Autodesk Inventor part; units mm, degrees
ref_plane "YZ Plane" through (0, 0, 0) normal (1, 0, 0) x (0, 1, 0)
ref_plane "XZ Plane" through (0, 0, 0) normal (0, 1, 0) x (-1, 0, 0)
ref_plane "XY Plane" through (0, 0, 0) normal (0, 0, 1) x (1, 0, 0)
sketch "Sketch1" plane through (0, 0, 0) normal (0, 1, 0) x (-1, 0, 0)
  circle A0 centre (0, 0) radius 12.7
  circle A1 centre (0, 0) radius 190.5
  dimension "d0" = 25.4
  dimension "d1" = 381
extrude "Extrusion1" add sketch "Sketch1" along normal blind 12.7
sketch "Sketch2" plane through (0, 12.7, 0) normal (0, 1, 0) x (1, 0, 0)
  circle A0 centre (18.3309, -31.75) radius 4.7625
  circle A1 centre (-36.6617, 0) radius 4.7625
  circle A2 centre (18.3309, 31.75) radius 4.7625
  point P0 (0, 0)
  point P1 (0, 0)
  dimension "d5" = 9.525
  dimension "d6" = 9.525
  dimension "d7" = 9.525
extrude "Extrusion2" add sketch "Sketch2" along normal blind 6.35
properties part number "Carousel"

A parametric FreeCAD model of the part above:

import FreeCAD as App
import Part
import Sketcher

V = App.Vector
Q = App.Units.Quantity

doc = App.newDocument("Part")
body = doc.addObject("PartDesign::Body", "Body")

# Sketch on XZ plane
sketch1 = body.newObject("Sketcher::SketchObject", "Sketch")
sketch1.AttachmentSupport = (doc.getObject("XZ_Plane"), [""])
sketch1.MapMode = "FlatFace"
sketch1.addGeometry(Part.Circle(V(0, 0, 0), V(0, 0, 1), 190), False)
sketch1.addGeometry(Part.Circle(V(0, 0, 0), V(0, 0, 1), 13), False)
sketch1.addConstraint(Sketcher.Constraint("Coincident", 0, 3, -1, 1))
sketch1.addConstraint(Sketcher.Constraint("Coincident", 1, 3, -1, 1))
sketch1.addConstraint(Sketcher.Constraint("Diameter", 0, Q("15 in")))
sketch1.addConstraint(Sketcher.Constraint("Diameter", 1, Q("1 in")))
pad1 = body.newObject("PartDesign::Pad", "Pad")
pad1.Profile = sketch1
pad1.Length = Q("0.5 in")
pad1.Reversed = True

# Sketch on XZ plane
sketch2 = body.newObject("Sketcher::SketchObject", "Sketch001")
sketch2.AttachmentSupport = (doc.getObject("XZ_Plane"), [""])
sketch2.MapMode = "FlatFace"
sketch2.AttachmentOffset = App.Placement(V(0, 0, -0.5 * 25.4), App.Rotation())
sketch2.addGeometry(Part.Circle(V(18.3, 31.8, 0), V(0, 0, 1), 4.8), False)
sketch2.addGeometry(Part.Circle(V(-36.7, 0, 0), V(0, 0, 1), 4.8), False)
sketch2.addGeometry(Part.Circle(V(18.3, -31.8, 0), V(0, 0, 1), 4.8), False)
sketch2.addConstraint(Sketcher.Constraint("Equal", 0, 1))
sketch2.addConstraint(Sketcher.Constraint("Equal", 1, 2))
sketch2.addConstraint(Sketcher.Constraint("Symmetric", 0, 3, 2, 3, -1))
sketch2.addConstraint(Sketcher.Constraint("PointOnObject", 1, 3, -1))
sketch2.addConstraint(Sketcher.Constraint("Diameter", 0, Q("0.375 in")))
sketch2.addConstraint(Sketcher.Constraint("DistanceY", 2, 3, 0, 3, Q("2.5 in")))
sketch2.addConstraint(Sketcher.Constraint("DistanceX", -1, 1, 0, 3, Q("0.7217 in")))
sketch2.addConstraint(Sketcher.Constraint("DistanceX", 1, 3, -1, 1, 36.6617))
pad2 = body.newObject("PartDesign::Pad", "Pad001")
pad2.Profile = sketch2
pad2.Length = Q("0.25 in")
pad2.Reversed = True

doc.recompute()
